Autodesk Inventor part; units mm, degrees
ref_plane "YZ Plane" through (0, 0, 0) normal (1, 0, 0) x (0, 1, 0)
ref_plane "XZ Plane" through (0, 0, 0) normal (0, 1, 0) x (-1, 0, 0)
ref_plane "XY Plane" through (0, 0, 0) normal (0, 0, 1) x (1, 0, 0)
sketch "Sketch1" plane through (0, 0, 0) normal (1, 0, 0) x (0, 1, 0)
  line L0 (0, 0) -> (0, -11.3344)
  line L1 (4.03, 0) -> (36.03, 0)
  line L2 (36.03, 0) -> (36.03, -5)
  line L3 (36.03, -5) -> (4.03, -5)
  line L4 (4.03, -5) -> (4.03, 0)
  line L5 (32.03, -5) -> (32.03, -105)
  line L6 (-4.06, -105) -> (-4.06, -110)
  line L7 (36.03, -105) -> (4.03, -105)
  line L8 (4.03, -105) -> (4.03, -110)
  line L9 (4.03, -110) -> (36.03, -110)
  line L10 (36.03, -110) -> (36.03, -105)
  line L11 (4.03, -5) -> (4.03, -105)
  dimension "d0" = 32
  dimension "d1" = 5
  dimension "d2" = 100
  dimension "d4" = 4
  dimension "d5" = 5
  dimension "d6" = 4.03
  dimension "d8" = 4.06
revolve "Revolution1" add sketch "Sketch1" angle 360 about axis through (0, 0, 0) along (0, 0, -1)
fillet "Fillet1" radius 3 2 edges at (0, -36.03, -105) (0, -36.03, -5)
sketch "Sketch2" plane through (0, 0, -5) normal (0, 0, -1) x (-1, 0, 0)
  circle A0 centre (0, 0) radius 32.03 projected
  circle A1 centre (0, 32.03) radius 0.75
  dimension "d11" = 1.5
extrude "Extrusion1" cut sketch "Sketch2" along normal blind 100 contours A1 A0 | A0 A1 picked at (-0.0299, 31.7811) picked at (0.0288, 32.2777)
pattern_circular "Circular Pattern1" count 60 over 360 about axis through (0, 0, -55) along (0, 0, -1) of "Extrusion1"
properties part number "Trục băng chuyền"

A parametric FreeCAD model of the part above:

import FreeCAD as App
import Part
import Sketcher

V = App.Vector
Q = App.Units.Quantity


def edges_at(feature, points):
    """Names of the edges that pass closest to the given points."""
    edges = feature.Shape.Edges
    near = lambda p: min(range(len(edges)), key=lambda i: edges[i].distToShape(Part.Vertex(*p))[0])
    return sorted({f"Edge{near(p) + 1}" for p in points})

doc = App.newDocument("Part")
body = doc.addObject("PartDesign::Body", "Body")

# Sketch on YZ plane
sketch1 = body.newObject("Sketcher::SketchObject", "Sketch")
sketch1.AttachmentSupport = (doc.getObject("YZ_Plane"), [""])
sketch1.MapMode = "FlatFace"
sketch1.addGeometry([
    Part.LineSegment(V(36, 0, 0), V(4, 0, 0)),  # 0
    Part.LineSegment(V(4, 0, 0), V(4, -110, 0)),  # 1
    Part.LineSegment(V(4, -110, 0), V(36, -110, 0)),  # 2
    Part.LineSegment(V(36, -110, 0), V(36, -105, 0)),  # 3
    Part.LineSegment(V(36, -105, 0), V(32, -105, 0)),  # 4
    Part.LineSegment(V(32, -105, 0), V(32, -5, 0)),  # 5
    Part.LineSegment(V(32, -5, 0), V(36, -5, 0)),  # 6
    Part.LineSegment(V(36, -5, 0), V(36, 0, 0)),  # 7
], False)
sketch1.addConstraint([
    Sketcher.Constraint("Coincident", 0, 2, 1, 1),
    Sketcher.Constraint("Coincident", 1, 2, 2, 1),
    Sketcher.Constraint("Coincident", 2, 2, 3, 1),
    Sketcher.Constraint("Coincident", 3, 2, 4, 1),
    Sketcher.Constraint("Coincident", 4, 2, 5, 1),
    Sketcher.Constraint("Coincident", 5, 2, 6, 1),
    Sketcher.Constraint("Coincident", 6, 2, 7, 1),
    Sketcher.Constraint("Coincident", 7, 2, 0, 1),
    Sketcher.Constraint("Horizontal", 0),
    Sketcher.Constraint("Vertical", 1),
    Sketcher.Constraint("Horizontal", 2),
    Sketcher.Constraint("Vertical", 3),
    Sketcher.Constraint("Horizontal", 4),
    Sketcher.Constraint("Vertical", 5),
    Sketcher.Constraint("Horizontal", 6),
    Sketcher.Constraint("Vertical", 7),
    Sketcher.Constraint("PointOnObject", 0, 2, -1),
    Sketcher.Constraint("Vertical", 3, 2, 6, 2),
    Sketcher.Constraint("Equal", 3, 7),
    Sketcher.Constraint("DistanceX", 0, 2, 0, 1, Q("32 mm")),
    Sketcher.Constraint("DistanceX", 4, 2, 4, 1, Q("4 mm")),
    Sketcher.Constraint("DistanceY", 3, 1, 3, 2, Q("5 mm")),
    Sketcher.Constraint("DistanceY", 5, 1, 5, 2, Q("100 mm")),
    Sketcher.Constraint("DistanceX", -1, 1, 0, 2, Q("4.03 mm")),
])
revolution = body.newObject("PartDesign::Revolution", "Revolution")
revolution.Profile = sketch1
revolution.ReferenceAxis = (sketch1, ["V_Axis"])
revolution.Angle = 360
doc.recompute()

fillet = body.newObject("PartDesign::Fillet", "Fillet")
fillet.Base = (revolution, edges_at(revolution, [(0, -36.03, -105), (0, -36.03, -5)]))
fillet.Radius = 3

# Sketch on XY plane
sketch2 = body.newObject("Sketcher::SketchObject", "Sketch001")
sketch2.AttachmentSupport = (doc.getObject("XY_Plane"), [""])
sketch2.MapMode = "FlatFace"
sketch2.AttachmentOffset = App.Placement(V(0, 0, -5), App.Rotation())
sketch2.addGeometry(Part.Circle(V(0, 32, 0), V(0, 0, 1), 0.8), False)
sketch2.addConstraint([
    Sketcher.Constraint("PointOnObject", 0, 3, -2),
    Sketcher.Constraint("Diameter", 0, Q("1.5 mm")),
    Sketcher.Constraint("DistanceY", -1, 1, 0, 3, Q("32.03 mm")),
])
pocket1 = body.newObject("PartDesign::Pocket", "Pocket")
pocket1.Profile = sketch2
pocket1.Length = 100
doc.recompute()

polarpattern = body.newObject("PartDesign::PolarPattern", "PolarPattern")
polarpattern.Originals = [pocket1]
polarpattern.Axis = (doc.getObject("Z_Axis"), [""])
polarpattern.Angle = 360
polarpattern.Occurrences = 60
body.Tip = polarpattern

doc.recompute()
